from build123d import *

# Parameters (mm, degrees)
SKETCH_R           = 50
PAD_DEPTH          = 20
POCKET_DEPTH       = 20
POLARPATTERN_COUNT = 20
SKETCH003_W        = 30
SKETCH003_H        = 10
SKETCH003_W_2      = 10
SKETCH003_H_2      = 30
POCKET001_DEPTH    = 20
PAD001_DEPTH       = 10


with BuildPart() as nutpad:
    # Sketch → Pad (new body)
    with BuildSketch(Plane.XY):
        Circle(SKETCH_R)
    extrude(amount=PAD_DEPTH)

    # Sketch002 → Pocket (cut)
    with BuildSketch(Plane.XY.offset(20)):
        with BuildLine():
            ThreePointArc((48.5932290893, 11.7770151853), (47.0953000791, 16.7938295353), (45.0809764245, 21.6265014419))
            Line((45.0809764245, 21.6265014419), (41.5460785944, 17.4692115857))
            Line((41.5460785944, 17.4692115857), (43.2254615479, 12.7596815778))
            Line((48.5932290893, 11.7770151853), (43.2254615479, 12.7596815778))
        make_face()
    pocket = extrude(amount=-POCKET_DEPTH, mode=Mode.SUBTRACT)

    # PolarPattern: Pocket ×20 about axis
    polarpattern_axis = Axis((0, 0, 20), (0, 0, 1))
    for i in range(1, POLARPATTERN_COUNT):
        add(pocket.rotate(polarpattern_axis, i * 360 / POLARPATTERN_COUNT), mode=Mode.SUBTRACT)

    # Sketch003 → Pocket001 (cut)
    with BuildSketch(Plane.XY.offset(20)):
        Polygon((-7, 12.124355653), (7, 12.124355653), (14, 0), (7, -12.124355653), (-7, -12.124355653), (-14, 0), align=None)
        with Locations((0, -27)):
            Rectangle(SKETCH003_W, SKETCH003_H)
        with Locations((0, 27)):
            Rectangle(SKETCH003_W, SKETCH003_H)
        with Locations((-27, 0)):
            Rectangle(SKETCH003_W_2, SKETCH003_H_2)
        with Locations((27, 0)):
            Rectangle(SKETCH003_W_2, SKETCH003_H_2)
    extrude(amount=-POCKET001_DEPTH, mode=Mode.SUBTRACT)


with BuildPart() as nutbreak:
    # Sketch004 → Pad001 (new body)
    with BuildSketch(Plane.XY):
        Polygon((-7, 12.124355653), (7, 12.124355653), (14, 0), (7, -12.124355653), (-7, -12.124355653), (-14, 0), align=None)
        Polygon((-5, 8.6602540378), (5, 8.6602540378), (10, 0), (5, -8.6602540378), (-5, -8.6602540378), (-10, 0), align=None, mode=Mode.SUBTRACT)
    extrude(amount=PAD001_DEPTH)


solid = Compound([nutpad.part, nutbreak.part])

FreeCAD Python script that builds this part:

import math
import FreeCAD as App
import Part
import Sketcher

V = App.Vector
Q = App.Units.Quantity

doc = App.newDocument("Part")
params = doc.addObject("Spreadsheet::Sheet", "Params")
for row, (alias, value) in enumerate([
    ("sketch1_diameter", "100 mm"),
    ("pad1_length", "20 mm"),
    ("sketch2_radius", "50 mm"),
    ("sketch2_length", "5 mm"),
    ("pocket1_length", "20 mm"),
    ("sketch3_width", "14 mm"),
    ("sketch3_width2", "30 mm"),
    ("sketch3_width3", "10 mm"),
    ("sketch3_length", "14 mm"),
    ("pocket2_length", "20 mm"),
    ("sketch4_width", "14 mm"),
    ("sketch4_width2", "10 mm"),
    ("sketch4_length", "14 mm"),
    ("sketch4_length2", "10 mm"),
    ("pad2_length", "10 mm"),
], start=1):
    params.set(f"A{row}", alias)
    params.set(f"B{row}", "=" + value)
    params.setAlias(f"B{row}", alias)

body = doc.addObject("PartDesign::Body", "Body")

sketch1 = body.newObject("Sketcher::SketchObject", "Sketch")
sketch1.AttachmentSupport = (doc.getObject("XY_Plane"), [""])
sketch1.MapMode = "FlatFace"
sketch1.addGeometry(Part.Circle(V(0, 0, 0), V(0, 0, 1), 50), False)
sketch1.addConstraint([
    Sketcher.Constraint("Coincident", 0, 3, -1, 1),
    Sketcher.Constraint("Diameter", 0, 100.0),
])
sketch1.setExpression("Constraints[1]", "Params.sketch1_diameter")
pad1 = body.newObject("PartDesign::Pad", "Pad")
pad1.Profile = sketch1
pad1.setExpression("Length", "Params.pad1_length")

sketch2 = body.newObject("Sketcher::SketchObject", "Sketch001")
sketch2.AttachmentSupport = (doc.getObject("XY_Plane"), [""])
sketch2.MapMode = "FlatFace"
sketch2.AttachmentOffset = App.Placement(V(0, 0, 20), App.Rotation())
sketch2.addGeometry([
    Part.ArcOfCircle(Part.Circle(V(0, 0, 0), V(0, 0, 1), 50), math.radians(13.62), math.radians(25.63)),
    Part.LineSegment(V(45, 22, 0), V(42, 17, 0)),
    Part.LineSegment(V(42, 17, 0), V(43, 13, 0)),
    Part.LineSegment(V(43, 13, 0), V(49, 12, 0)),
], False)
sketch2.addConstraint([
    Sketcher.Constraint("Coincident", 0, 2, 1, 1),
    Sketcher.Constraint("Coincident", 1, 2, 2, 1),
    Sketcher.Constraint("Coincident", 2, 2, 3, 1),
    Sketcher.Constraint("Coincident", 3, 2, 0, 1),
    Sketcher.Constraint("Coincident", 0, 3, -1, 1),
    Sketcher.Constraint("Equal", 1, 3),
    Sketcher.Constraint("Radius", 0, 50.0),
    Sketcher.Constraint("Distance", 2, 5.0),
    Sketcher.Constraint("DistanceY", -1, 1, 0, 2, 21.626501),
    Sketcher.Constraint("DistanceX", -1, 1, 1, 2, 41.546079),
    Sketcher.Constraint("DistanceY", -1, 1, 1, 2, 17.469212),
    Sketcher.Constraint("DistanceX", -1, 1, 2, 2, 43.225462),
])
sketch2.setExpression("Constraints[6]", "Params.sketch2_radius")
sketch2.setExpression("Constraints[7]", "Params.sketch2_length")
pocket1 = body.newObject("PartDesign::Pocket", "Pocket")
pocket1.Profile = sketch2
pocket1.setExpression("Length", "Params.pocket1_length")
doc.recompute()

polarpattern = body.newObject("PartDesign::PolarPattern", "PolarPattern")
polarpattern.Originals = [pocket1]
polarpattern.Axis = (doc.getObject("Z_Axis"), [""])
polarpattern.Angle = 360
polarpattern.Occurrences = 20
body.Tip = polarpattern

sketch3 = body.newObject("Sketcher::SketchObject", "Sketch002")
sketch3.AttachmentSupport = (doc.getObject("XY_Plane"), [""])
sketch3.MapMode = "FlatFace"
sketch3.AttachmentOffset = App.Placement(V(0, 0, 20), App.Rotation())
sketch3.addGeometry([
    Part.LineSegment(V(7, 12, 0), V(-7, 12, 0)),
    Part.LineSegment(V(-7, 12, 0), V(-14, 0, 0)),
    Part.LineSegment(V(-14, 0, 0), V(-7, -12, 0)),
    Part.LineSegment(V(-7, -12, 0), V(7, -12, 0)),
    Part.LineSegment(V(7, -12, 0), V(14, 0, 0)),
    Part.LineSegment(V(14, 0, 0), V(7, 12, 0)),
    Part.LineSegment(V(-15, -22, 0), V(-15, -32, 0)),
    Part.LineSegment(V(-15, -32, 0), V(15, -32, 0)),
    Part.LineSegment(V(15, -32, 0), V(15, -22, 0)),
    Part.LineSegment(V(15, -22, 0), V(-15, -22, 0)),
    Part.LineSegment(V(-15, 32, 0), V(-15, 22, 0)),
    Part.LineSegment(V(-15, 22, 0), V(15, 22, 0)),
    Part.LineSegment(V(15, 22, 0), V(15, 32, 0)),
    Part.LineSegment(V(15, 32, 0), V(-15, 32, 0)),
    Part.LineSegment(V(-32, 15, 0), V(-32, -15, 0)),
    Part.LineSegment(V(-32, -15, 0), V(-22, -15, 0)),
    Part.LineSegment(V(-22, -15, 0), V(-22, 15, 0)),
    Part.LineSegment(V(-22, 15, 0), V(-32, 15, 0)),
    Part.LineSegment(V(22, 15, 0), V(22, -15, 0)),
    Part.LineSegment(V(22, -15, 0), V(32, -15, 0)),
    Part.LineSegment(V(32, -15, 0), V(32, 15, 0)),
    Part.LineSegment(V(32, 15, 0), V(22, 15, 0)),
], False)
sketch3.addConstraint([
    Sketcher.Constraint("Coincident", 0, 2, 1, 1),
    Sketcher.Constraint("Coincident", 1, 2, 2, 1),
    Sketcher.Constraint("Coincident", 2, 2, 3, 1),
    Sketcher.Constraint("Coincident", 3, 2, 4, 1),
    Sketcher.Constraint("Coincident", 4, 2, 5, 1),
    Sketcher.Constraint("Coincident", 5, 2, 0, 1),
    Sketcher.Constraint("Coincident", 6, 2, 7, 1),
    Sketcher.Constraint("Coincident", 7, 2, 8, 1),
    Sketcher.Constraint("Coincident", 8, 2, 9, 1),
    Sketcher.Constraint("Coincident", 9, 2, 6, 1),
    Sketcher.Constraint("Coincident", 10, 2, 11, 1),
    Sketcher.Constraint("Coincident", 11, 2, 12, 1),
    Sketcher.Constraint("Coincident", 12, 2, 13, 1),
    Sketcher.Constraint("Coincident", 13, 2, 10, 1),
    Sketcher.Constraint("Coincident", 14, 2, 15, 1),
    Sketcher.Constraint("Coincident", 15, 2, 16, 1),
    Sketcher.Constraint("Coincident", 16, 2, 17, 1),
    Sketcher.Constraint("Coincident", 17, 2, 14, 1),
    Sketcher.Constraint("Coincident", 18, 2, 19, 1),
    Sketcher.Constraint("Coincident", 19, 2, 20, 1),
    Sketcher.Constraint("Coincident", 20, 2, 21, 1),
    Sketcher.Constraint("Coincident", 21, 2, 18, 1),
    Sketcher.Constraint("Horizontal", 0),
    Sketcher.Constraint("Horizontal", 3),
    Sketcher.Constraint("Vertical", 6),
    Sketcher.Constraint("Horizontal", 7),
    Sketcher.Constraint("Vertical", 8),
    Sketcher.Constraint("Horizontal", 9),
    Sketcher.Constraint("Vertical", 10),
    Sketcher.Constraint("Horizontal", 11),
    Sketcher.Constraint("Vertical", 12),
    Sketcher.Constraint("Horizontal", 13),
    Sketcher.Constraint("Vertical", 14),
    Sketcher.Constraint("Horizontal", 15),
    Sketcher.Constraint("Vertical", 16),
    Sketcher.Constraint("Horizontal", 17),
    Sketcher.Constraint("Vertical", 18),
    Sketcher.Constraint("Horizontal", 19),
    Sketcher.Constraint("Vertical", 20),
    Sketcher.Constraint("Horizontal", 21),
    Sketcher.Constraint("Symmetric", 0, 2, 3, 2, -1, 1),
    Sketcher.Constraint("Symmetric", 1, 2, 4, 2, -1, 1),
    Sketcher.Constraint("Symmetric", 8, 2, 10, 2, -1, 1),
    Sketcher.Constraint("Symmetric", 6, 2, 12, 2, -1, 1),
    Sketcher.Constraint("Symmetric", 16, 2, 18, 2, -1, 1),
    Sketcher.Constraint("Symmetric", 14, 2, 20, 2, -1, 1),
    Sketcher.Constraint("PointOnObject", 1, 2, -1),
    Sketcher.Constraint("Parallel", 2, 5),
    Sketcher.Constraint("Horizontal", 15, 2, 18, 2),
    Sketcher.Constraint("Vertical", 0, 2, 2, 2),
    Sketcher.Constraint("Vertical", 9, 2, 10, 2),
    Sketcher.Constraint("Equal", 21, 6),
    Sketcher.Constraint("Equal", 13, 14),
    Sketcher.Constraint("DistanceX", 0, 2, 0, 1, 14.0),
    Sketcher.Constraint("DistanceX", 7, 1, 7, 2, 30.0),
    Sketcher.Constraint("DistanceX", 15, 1, 15, 2, 10.0),
    Sketcher.Constraint("Angle", 1, Q("-120 deg")),
    Sketcher.Constraint("Distance", 1, 14.0),
    Sketcher.Constraint("DistanceY", 6, 2, -1, 1, 32.0),
    Sketcher.Constraint("DistanceX", 14, 2, -1, 1, 32.0),
])
sketch3.setExpression("Constraints[53]", "Params.sketch3_width")
sketch3.setExpression("Constraints[54]", "Params.sketch3_width2")
sketch3.setExpression("Constraints[55]", "Params.sketch3_width3")
sketch3.setExpression("Constraints[57]", "Params.sketch3_length")
pocket2 = body.newObject("PartDesign::Pocket", "Pocket001")
pocket2.Profile = sketch3
pocket2.setExpression("Length", "Params.pocket2_length")
body2 = doc.addObject("PartDesign::Body", "Body001")

sketch4 = body2.newObject("Sketcher::SketchObject", "Sketch003")
sketch4.AttachmentSupport = (doc.getObject("XY_Plane001"), [""])
sketch4.MapMode = "FlatFace"
sketch4.addGeometry([
    Part.LineSegment(V(7, 12, 0), V(-7, 12, 0)),
    Part.LineSegment(V(-7, 12, 0), V(-14, 0, 0)),
    Part.LineSegment(V(-14, 0, 0), V(-7, -12, 0)),
    Part.LineSegment(V(-7, -12, 0), V(7, -12, 0)),
    Part.LineSegment(V(7, -12, 0), V(14, 0, 0)),
    Part.LineSegment(V(14, 0, 0), V(7, 12, 0)),
    Part.LineSegment(V(-5, 9, 0), V(5, 9, 0)),
    Part.LineSegment(V(5, 9, 0), V(10, 0, 0)),
    Part.LineSegment(V(10, 0, 0), V(5, -9, 0)),
    Part.LineSegment(V(5, -9, 0), V(-5, -9, 0)),
    Part.LineSegment(V(-5, -9, 0), V(-10, 0, 0)),
    Part.LineSegment(V(-10, 0, 0), V(-5, 9, 0)),
], False)
sketch4.addConstraint([
    Sketcher.Constraint("Coincident", 0, 2, 1, 1),
    Sketcher.Constraint("Coincident", 1, 2, 2, 1),
    Sketcher.Constraint("Coincident", 2, 2, 3, 1),
    Sketcher.Constraint("Coincident", 3, 2, 4, 1),
    Sketcher.Constraint("Coincident", 4, 2, 5, 1),
    Sketcher.Constraint("Coincident", 5, 2, 0, 1),
    Sketcher.Constraint("Coincident", 6, 2, 7, 1),
    Sketcher.Constraint("Coincident", 7, 2, 8, 1),
    Sketcher.Constraint("Coincident", 8, 2, 9, 1),
    Sketcher.Constraint("Coincident", 9, 2, 10, 1),
    Sketcher.Constraint("Coincident", 10, 2, 11, 1),
    Sketcher.Constraint("Coincident", 11, 2, 6, 1),
    Sketcher.Constraint("Horizontal", 0),
    Sketcher.Constraint("Horizontal", 3),
    Sketcher.Constraint("Horizontal", 6),
    Sketcher.Constraint("Horizontal", 9),
    Sketcher.Constraint("Symmetric", 0, 2, 3, 2, -1, 1),
    Sketcher.Constraint("Symmetric", 1, 2, 4, 2, -1, 1),
    Sketcher.Constraint("Symmetric", 6, 2, 9, 2, -1, 1),
    Sketcher.Constraint("Symmetric", 7, 2, 10, 2, -1, 1),
    Sketcher.Constraint("PointOnObject", 1, 2, -1),
    Sketcher.Constraint("PointOnObject", 7, 2, -1),
    Sketcher.Constraint("Parallel", 2, 5),
    Sketcher.Constraint("Parallel", 5, 7),
    Sketcher.Constraint("Parallel", 4, 8),
    Sketcher.Constraint("Parallel", 8, 11),
    Sketcher.Constraint("Vertical", 0, 2, 2, 2),
    Sketcher.Constraint("DistanceX", 0, 2, 0, 1, 14.0),
    Sketcher.Constraint("DistanceX", 6, 1, 6, 2, 10.0),
    Sketcher.Constraint("Angle", 1, Q("-120 deg")),
    Sketcher.Constraint("Distance", 1, 14.0),
    Sketcher.Constraint("Distance", 7, 10.0),
])
sketch4.setExpression("Constraints[27]", "Params.sketch4_width")
sketch4.setExpression("Constraints[28]", "Params.sketch4_width2")
sketch4.setExpression("Constraints[30]", "Params.sketch4_length")
sketch4.setExpression("Constraints[31]", "Params.sketch4_length2")
pad2 = body2.newObject("PartDesign::Pad", "Pad001")
pad2.Profile = sketch4
pad2.setExpression("Length", "Params.pad2_length")

doc.recompute()
